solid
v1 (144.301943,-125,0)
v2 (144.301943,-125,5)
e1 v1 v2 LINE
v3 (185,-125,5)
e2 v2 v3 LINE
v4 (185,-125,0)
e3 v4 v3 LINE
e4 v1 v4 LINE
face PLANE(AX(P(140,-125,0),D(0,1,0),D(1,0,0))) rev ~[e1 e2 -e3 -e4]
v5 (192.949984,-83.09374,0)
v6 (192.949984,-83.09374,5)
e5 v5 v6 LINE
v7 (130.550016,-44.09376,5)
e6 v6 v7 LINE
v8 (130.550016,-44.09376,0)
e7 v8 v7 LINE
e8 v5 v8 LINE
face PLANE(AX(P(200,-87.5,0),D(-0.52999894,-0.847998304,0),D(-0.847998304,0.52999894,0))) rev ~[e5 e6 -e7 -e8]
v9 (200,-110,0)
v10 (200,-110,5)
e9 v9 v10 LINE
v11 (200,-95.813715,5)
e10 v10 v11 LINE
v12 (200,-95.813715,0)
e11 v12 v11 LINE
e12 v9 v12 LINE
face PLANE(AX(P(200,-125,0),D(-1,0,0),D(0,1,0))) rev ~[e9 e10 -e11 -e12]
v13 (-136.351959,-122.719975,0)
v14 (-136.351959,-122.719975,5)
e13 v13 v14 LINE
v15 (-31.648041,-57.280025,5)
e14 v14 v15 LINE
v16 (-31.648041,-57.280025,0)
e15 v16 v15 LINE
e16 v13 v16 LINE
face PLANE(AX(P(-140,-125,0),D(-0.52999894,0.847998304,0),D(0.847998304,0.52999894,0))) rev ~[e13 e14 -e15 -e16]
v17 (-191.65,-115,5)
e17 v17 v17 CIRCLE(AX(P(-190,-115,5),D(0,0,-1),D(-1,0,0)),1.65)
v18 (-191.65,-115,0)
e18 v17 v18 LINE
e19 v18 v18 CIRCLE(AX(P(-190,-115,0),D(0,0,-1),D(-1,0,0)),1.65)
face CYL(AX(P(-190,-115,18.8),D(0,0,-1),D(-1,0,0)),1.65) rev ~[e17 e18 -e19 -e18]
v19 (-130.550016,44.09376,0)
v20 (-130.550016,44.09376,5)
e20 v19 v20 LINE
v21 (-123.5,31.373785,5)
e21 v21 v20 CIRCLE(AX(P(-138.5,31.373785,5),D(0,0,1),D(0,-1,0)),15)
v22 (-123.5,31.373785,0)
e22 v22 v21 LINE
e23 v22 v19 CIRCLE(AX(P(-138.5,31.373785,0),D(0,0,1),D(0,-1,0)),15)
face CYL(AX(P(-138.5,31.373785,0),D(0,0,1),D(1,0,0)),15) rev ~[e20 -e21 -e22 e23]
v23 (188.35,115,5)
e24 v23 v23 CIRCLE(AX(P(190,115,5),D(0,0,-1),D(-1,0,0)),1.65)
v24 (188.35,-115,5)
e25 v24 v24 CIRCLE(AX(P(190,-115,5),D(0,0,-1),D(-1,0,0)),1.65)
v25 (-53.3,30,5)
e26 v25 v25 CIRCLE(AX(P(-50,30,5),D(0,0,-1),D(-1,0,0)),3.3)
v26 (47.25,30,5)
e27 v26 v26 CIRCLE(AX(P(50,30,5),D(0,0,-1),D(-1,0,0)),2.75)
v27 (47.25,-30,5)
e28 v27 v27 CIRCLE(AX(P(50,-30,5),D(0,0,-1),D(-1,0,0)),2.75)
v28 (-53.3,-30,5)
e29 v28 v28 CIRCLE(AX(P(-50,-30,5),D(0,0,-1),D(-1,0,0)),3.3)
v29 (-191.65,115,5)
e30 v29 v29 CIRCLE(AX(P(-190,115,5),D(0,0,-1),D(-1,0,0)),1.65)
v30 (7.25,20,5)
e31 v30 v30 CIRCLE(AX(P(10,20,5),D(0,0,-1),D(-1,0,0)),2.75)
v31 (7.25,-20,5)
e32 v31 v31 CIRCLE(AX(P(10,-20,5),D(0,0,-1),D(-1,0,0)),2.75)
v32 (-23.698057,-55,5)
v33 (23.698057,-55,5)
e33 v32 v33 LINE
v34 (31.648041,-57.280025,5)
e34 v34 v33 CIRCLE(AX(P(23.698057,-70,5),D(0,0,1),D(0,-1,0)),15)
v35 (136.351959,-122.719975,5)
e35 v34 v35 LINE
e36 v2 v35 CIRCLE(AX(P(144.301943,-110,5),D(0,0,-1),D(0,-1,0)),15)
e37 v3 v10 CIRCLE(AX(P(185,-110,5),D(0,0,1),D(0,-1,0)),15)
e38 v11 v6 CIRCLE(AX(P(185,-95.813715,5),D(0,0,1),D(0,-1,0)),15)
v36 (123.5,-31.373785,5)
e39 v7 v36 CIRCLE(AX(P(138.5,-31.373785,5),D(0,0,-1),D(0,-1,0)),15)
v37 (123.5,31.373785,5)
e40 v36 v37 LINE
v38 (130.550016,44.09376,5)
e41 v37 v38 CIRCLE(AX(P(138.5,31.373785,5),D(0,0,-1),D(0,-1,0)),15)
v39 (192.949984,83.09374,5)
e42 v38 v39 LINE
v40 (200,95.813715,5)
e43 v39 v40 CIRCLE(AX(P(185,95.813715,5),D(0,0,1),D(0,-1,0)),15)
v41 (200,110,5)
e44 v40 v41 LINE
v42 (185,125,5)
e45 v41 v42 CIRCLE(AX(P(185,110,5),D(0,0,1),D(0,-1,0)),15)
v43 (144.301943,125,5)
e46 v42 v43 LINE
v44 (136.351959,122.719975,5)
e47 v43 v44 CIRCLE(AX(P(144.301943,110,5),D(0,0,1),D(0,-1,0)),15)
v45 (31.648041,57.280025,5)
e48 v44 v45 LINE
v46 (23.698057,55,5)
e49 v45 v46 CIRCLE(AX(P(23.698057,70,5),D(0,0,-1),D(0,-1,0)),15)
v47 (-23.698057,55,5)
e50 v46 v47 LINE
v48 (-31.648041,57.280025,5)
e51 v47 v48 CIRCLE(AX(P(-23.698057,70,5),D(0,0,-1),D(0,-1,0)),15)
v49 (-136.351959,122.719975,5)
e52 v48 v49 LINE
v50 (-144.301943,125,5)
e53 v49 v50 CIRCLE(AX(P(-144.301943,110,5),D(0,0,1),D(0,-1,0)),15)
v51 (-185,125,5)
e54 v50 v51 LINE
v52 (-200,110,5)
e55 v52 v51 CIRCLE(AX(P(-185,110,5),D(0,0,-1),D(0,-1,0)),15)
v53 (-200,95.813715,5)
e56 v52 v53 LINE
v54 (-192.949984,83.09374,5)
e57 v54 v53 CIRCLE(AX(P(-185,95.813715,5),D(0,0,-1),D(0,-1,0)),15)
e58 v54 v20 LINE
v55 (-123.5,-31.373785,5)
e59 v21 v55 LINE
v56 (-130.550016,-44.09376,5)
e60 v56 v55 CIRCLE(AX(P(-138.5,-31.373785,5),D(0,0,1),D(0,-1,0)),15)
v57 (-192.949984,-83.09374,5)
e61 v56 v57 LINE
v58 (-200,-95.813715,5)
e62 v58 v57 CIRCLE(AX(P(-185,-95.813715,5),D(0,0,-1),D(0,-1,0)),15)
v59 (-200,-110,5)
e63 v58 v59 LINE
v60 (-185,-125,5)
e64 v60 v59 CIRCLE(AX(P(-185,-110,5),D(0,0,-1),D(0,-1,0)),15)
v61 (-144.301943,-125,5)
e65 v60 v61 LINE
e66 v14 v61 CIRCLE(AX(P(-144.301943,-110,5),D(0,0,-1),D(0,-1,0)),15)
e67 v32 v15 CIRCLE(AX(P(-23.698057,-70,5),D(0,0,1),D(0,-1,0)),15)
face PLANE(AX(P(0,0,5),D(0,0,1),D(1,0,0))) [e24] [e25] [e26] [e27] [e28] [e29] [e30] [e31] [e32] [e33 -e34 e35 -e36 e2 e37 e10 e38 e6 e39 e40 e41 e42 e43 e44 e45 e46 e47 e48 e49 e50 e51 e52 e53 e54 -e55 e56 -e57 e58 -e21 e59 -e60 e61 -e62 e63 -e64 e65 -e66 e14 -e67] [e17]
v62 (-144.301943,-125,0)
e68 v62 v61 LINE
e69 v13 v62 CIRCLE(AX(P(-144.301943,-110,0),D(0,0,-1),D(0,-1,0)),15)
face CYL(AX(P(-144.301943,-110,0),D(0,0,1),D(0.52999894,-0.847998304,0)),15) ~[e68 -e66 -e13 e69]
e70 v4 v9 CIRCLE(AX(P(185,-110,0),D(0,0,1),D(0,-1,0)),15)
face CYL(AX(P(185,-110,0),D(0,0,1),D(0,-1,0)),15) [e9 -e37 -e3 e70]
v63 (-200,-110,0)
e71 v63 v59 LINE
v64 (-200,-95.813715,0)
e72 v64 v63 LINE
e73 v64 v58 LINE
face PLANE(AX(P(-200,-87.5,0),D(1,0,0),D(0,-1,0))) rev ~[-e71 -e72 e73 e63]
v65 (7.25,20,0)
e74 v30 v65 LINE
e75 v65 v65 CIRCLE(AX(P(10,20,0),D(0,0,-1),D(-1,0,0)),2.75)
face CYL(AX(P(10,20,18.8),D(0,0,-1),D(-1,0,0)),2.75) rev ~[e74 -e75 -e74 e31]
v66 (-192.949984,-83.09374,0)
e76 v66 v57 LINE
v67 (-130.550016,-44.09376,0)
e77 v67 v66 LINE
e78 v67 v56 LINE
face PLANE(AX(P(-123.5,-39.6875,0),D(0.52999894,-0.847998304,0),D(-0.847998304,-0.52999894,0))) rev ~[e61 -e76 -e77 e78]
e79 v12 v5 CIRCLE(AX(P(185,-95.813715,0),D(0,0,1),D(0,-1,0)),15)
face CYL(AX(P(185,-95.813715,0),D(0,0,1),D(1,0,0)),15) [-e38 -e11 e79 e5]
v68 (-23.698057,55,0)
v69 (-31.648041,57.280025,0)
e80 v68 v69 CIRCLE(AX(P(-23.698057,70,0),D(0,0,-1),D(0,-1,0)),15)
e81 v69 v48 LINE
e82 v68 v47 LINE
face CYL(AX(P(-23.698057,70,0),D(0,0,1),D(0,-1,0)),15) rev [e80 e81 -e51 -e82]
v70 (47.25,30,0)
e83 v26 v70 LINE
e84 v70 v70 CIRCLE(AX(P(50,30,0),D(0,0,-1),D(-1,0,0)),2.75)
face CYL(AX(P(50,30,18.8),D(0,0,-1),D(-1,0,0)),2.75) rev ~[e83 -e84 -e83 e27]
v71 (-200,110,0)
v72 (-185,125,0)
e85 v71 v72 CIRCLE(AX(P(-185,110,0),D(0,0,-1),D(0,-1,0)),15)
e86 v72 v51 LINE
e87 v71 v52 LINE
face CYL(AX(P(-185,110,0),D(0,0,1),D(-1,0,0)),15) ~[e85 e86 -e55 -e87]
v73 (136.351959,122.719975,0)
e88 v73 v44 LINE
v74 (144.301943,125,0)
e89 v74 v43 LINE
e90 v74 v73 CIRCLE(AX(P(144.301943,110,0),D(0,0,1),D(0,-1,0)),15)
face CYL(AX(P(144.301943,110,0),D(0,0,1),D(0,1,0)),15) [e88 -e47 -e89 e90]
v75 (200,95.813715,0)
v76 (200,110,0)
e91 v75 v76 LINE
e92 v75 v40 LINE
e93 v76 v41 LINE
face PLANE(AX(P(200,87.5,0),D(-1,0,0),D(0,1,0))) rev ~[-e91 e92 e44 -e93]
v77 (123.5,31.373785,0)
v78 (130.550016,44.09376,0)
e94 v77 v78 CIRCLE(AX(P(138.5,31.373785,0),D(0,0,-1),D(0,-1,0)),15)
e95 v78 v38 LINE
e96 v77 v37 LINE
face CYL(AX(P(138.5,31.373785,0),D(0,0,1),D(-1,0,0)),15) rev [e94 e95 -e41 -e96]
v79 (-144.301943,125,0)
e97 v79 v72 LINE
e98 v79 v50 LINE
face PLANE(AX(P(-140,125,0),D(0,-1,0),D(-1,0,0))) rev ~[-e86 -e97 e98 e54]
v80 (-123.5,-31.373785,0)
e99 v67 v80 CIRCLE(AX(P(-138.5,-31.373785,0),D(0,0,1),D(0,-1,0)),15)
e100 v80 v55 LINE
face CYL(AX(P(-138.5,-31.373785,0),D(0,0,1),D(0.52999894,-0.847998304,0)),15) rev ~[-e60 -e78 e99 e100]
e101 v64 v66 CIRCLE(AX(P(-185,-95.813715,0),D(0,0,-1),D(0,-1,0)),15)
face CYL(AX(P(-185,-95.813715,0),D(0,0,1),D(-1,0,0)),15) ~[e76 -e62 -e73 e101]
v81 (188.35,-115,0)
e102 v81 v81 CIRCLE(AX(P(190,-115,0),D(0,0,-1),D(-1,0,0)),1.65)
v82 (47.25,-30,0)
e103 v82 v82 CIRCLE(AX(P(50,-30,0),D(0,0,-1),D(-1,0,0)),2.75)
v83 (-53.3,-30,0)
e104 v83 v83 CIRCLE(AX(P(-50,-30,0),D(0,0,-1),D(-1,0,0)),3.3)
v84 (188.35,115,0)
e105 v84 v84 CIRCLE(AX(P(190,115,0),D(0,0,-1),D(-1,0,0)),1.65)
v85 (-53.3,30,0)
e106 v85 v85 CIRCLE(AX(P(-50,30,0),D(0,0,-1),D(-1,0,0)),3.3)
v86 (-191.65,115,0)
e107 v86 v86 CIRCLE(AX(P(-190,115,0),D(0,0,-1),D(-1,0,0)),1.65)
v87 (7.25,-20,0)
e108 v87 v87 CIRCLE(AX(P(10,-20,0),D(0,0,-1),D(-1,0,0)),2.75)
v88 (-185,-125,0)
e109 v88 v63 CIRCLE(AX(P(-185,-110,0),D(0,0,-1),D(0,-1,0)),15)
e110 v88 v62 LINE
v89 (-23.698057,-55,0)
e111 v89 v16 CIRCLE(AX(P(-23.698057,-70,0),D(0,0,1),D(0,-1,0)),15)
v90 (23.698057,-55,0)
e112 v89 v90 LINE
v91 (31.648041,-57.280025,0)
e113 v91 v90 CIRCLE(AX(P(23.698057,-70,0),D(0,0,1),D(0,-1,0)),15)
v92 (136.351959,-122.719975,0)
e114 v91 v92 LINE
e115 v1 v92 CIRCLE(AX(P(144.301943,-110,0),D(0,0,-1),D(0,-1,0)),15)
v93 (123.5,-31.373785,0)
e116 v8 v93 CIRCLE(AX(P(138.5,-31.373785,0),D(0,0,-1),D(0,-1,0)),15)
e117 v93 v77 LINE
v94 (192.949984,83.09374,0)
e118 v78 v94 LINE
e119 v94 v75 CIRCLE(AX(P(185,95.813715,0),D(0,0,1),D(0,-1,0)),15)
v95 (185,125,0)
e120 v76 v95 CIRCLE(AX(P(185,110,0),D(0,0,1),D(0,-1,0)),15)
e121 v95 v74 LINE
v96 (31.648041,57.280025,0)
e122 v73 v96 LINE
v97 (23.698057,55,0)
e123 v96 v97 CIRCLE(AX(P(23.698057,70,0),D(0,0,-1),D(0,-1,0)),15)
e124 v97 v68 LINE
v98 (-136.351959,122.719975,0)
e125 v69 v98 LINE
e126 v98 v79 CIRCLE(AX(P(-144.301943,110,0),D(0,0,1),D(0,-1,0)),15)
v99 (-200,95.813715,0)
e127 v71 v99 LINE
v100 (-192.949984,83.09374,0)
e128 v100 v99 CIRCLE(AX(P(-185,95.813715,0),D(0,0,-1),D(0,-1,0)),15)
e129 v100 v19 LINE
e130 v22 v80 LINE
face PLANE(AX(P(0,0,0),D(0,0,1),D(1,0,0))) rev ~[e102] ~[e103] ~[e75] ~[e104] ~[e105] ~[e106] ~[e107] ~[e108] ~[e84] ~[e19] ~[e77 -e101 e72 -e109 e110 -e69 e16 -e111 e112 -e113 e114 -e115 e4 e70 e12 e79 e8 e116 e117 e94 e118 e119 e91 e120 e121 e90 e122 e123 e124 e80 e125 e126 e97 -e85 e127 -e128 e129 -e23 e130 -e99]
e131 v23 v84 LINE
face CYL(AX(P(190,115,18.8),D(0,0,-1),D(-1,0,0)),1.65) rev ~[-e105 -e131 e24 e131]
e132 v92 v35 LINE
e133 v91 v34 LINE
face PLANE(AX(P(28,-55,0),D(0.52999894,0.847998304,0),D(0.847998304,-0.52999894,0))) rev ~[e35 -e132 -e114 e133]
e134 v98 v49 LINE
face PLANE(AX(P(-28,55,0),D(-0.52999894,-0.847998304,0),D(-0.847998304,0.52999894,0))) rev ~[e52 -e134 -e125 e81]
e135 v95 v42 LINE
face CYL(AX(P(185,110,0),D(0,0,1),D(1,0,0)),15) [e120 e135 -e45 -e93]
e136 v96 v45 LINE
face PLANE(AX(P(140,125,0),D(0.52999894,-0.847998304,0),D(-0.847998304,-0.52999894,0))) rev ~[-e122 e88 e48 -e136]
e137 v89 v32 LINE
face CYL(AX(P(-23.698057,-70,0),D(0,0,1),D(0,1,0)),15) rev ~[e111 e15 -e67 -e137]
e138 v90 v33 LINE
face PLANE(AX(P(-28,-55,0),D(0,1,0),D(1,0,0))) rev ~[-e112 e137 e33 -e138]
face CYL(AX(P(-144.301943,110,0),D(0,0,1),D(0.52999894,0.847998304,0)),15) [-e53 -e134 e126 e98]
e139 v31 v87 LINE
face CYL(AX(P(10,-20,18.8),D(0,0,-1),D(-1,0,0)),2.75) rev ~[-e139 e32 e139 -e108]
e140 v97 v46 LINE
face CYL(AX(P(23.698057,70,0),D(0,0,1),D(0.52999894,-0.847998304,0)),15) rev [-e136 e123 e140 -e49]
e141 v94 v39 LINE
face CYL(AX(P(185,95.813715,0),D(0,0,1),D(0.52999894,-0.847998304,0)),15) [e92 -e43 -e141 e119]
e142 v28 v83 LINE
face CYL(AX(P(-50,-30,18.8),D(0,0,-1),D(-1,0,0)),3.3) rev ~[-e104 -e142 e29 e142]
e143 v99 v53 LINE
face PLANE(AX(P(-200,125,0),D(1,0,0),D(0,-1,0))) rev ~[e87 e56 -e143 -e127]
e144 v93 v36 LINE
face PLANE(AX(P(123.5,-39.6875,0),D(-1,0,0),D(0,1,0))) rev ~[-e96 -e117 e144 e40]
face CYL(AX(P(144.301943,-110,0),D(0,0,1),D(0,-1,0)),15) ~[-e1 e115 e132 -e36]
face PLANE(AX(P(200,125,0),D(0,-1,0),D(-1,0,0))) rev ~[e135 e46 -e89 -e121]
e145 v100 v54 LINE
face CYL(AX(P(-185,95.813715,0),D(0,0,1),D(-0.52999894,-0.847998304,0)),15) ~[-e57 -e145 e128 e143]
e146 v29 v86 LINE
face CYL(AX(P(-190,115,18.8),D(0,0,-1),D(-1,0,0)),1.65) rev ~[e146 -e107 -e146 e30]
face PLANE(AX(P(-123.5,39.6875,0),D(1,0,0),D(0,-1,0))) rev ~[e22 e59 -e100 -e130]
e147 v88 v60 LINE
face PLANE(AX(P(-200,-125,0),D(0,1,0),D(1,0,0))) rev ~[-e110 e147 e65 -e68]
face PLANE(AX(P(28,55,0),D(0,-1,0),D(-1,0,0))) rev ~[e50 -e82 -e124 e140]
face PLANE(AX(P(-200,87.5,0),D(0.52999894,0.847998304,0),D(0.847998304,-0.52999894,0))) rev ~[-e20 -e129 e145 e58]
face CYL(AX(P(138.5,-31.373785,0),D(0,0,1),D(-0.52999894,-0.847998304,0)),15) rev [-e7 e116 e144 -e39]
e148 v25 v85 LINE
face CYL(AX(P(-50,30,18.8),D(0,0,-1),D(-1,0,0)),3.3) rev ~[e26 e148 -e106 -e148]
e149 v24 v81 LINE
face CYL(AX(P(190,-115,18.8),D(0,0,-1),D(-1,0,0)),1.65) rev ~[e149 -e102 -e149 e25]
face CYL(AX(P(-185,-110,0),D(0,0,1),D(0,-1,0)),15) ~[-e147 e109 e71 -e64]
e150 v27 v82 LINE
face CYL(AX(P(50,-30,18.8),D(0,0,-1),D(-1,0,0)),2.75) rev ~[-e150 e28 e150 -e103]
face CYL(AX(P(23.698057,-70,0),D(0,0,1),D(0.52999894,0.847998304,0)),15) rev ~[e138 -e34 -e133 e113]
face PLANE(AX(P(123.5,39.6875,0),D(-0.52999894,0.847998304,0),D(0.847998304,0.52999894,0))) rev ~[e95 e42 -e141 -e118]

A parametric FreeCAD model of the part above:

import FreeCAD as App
import Part
import Sketcher
from FreeCAD import Vector
Q = App.Units.Quantity


def edges_at(feature, points):
    """Names of the edges that pass closest to the given points."""
    edges = feature.Shape.Edges
    near = lambda p: min(range(len(edges)), key=lambda i: edges[i].distToShape(Part.Vertex(*p))[0])
    return sorted({f"Edge{near(p) + 1}" for p in points})


def add_polygon(sketch, points):
    """Adds a closed chain of lines whose ends are joined by coincident constraints."""
    first, n = sketch.GeometryCount, len(points)
    for a, b in zip(points, points[1:] + points[:1]):
        sketch.addGeometry(Part.LineSegment(App.Vector(*a, 0), App.Vector(*b, 0)), False)
    for i in range(n):
        sketch.addConstraint(Sketcher.Constraint("Coincident", first + i, 2, first + (i + 1) % n, 1))

doc = App.newDocument("Part")
body = doc.addObject("PartDesign::Body", "Body")

# Sketch on XY plane
sketch1 = doc.addObject("Sketcher::SketchObject", "Sketch")
body.addObject(sketch1)
sketch1.AttachmentSupport = (doc.XY_Plane, [""])
sketch1.MapMode = "FlatFace"
add_polygon(sketch1, [(140, -125), (200, -125), (200, -87.5), (123.5, -39.6875), (123.5, 39.6875), (200, 87.5), (200, 125), (140, 125), (28, 55), (-28, 55), (-140, 125), (-200, 125), (-200, 87.5), (-123.5, 39.6875), (-123.5, -39.6875), (-200, -87.5), (-200, -125), (-140, -125), (-28, -55), (28, -55)])  # lines 0-19
sketch1.addConstraint([
    Sketcher.Constraint("Horizontal", 0),
    Sketcher.Constraint("Vertical", 1),
    Sketcher.Constraint("Vertical", 3),
    Sketcher.Constraint("Vertical", 5),
    Sketcher.Constraint("Horizontal", 6),
    Sketcher.Constraint("Horizontal", 8),
    Sketcher.Constraint("Horizontal", 10),
    Sketcher.Constraint("Vertical", 11),
    Sketcher.Constraint("Vertical", 13),
    Sketcher.Constraint("Vertical", 15),
    Sketcher.Constraint("Horizontal", 16),
    Sketcher.Constraint("Horizontal", 18),
    Sketcher.Constraint("Symmetric", 0, 2, 10, 2, -1, 1),
    Sketcher.Constraint("Symmetric", 2, 2, 12, 2, -1, 1),
    Sketcher.Constraint("Symmetric", 4, 2, 14, 2, -1, 1),
    Sketcher.Constraint("Symmetric", 6, 2, 16, 2, -1, 1),
    Sketcher.Constraint("Symmetric", 7, 2, 17, 2, -1, 1),
    Sketcher.Constraint("Symmetric", 6, 2, 9, 2, -2),
    Sketcher.Constraint("Symmetric", 4, 2, 11, 2, -2),
    Sketcher.Constraint("Parallel", 4, 7),
    Sketcher.Constraint("Parallel", 2, 9),
    Sketcher.Constraint("Parallel", 9, 12),
    Sketcher.Constraint("Parallel", 7, 14),
    Sketcher.Constraint("Parallel", 12, 19),
    Sketcher.Constraint("Horizontal", 3, 2, 12, 2),
    Sketcher.Constraint("Vertical", 7, 2, 18, 2),
    Sketcher.Constraint("DistanceX", 0, 1, 0, 2, Q("60 mm")),
    Sketcher.Constraint("DistanceX", 8, 2, 8, 1, Q("56 mm")),
    Sketcher.Constraint("DistanceY", 1, 1, 1, 2, Q("37.5 mm")),
    Sketcher.Constraint("DistanceX", -1, 1, 0, 2, Q("200 mm")),
    Sketcher.Constraint("DistanceY", 0, 2, -1, 1, Q("125 mm")),
    Sketcher.Constraint("DistanceY", -1, 1, 7, 2, Q("55 mm")),
    Sketcher.Constraint("DistanceX", -1, 1, 2, 2, Q("123.5 mm")),
])
pad1 = doc.addObject("PartDesign::Pad", "Pad")
body.addObject(pad1)
pad1.Profile = sketch1
pad1.Length = 5

# Sketch on XY plane
sketch2 = doc.addObject("Sketcher::SketchObject", "Sketch001")
body.addObject(sketch2)
sketch2.AttachmentSupport = (doc.XY_Plane, [""])
sketch2.MapMode = "FlatFace"
sketch2.AttachmentOffset = App.Placement(Vector(0, 0, 5), App.Rotation())
sketch2.addGeometry([
    Part.Circle(Vector(-190, 115, 0), Vector(0, 0, 1), 1.65),
    Part.Circle(Vector(-190, -115, 0), Vector(0, 0, 1), 1.65),
    Part.Circle(Vector(190, -115, 0), Vector(0, 0, 1), 1.65),
    Part.Circle(Vector(190, 115, 0), Vector(0, 0, 1), 1.65),
], False)
sketch2.addConstraint([
    Sketcher.Constraint("Equal", 0, 1),
    Sketcher.Constraint("Equal", 1, 2),
    Sketcher.Constraint("Equal", 2, 3),
    Sketcher.Constraint("Symmetric", 0, 3, 2, 3, -1, 1),
    Sketcher.Constraint("Symmetric", 1, 3, 3, 3, -1, 1),
    Sketcher.Constraint("Symmetric", 1, 3, 2, 3, -2),
    Sketcher.Constraint("Diameter", 0, Q("3.3 mm")),
    Sketcher.Constraint("DistanceX", 0, 3, -1, 1, Q("190 mm")),
    Sketcher.Constraint("DistanceY", -1, 1, 0, 3, Q("115 mm")),
])
doc.recompute()
hole = doc.addObject("PartDesign::Hole", "Hole")
body.addObject(hole)
hole.Profile = sketch2
hole.ThreadType = "None"
hole.Diameter = 3.3
hole.DepthType = "Dimension"
hole.Depth = 13.8
hole.DrillPoint = "Angled"
hole.DrillPointAngle = 118

# Sketch on XY plane
sketch3 = doc.addObject("Sketcher::SketchObject", "Sketch002")
body.addObject(sketch3)
sketch3.AttachmentSupport = (doc.XY_Plane, [""])
sketch3.MapMode = "FlatFace"
sketch3.AttachmentOffset = App.Placement(Vector(0, 0, 5), App.Rotation())
sketch3.addGeometry([
    Part.Circle(Vector(50, -30, 0), Vector(0, 0, 1), 2.75),
    Part.Circle(Vector(50, 30, 0), Vector(0, 0, 1), 2.75),
    Part.Circle(Vector(10, 20, 0), Vector(0, 0, 1), 2.75),
    Part.Circle(Vector(10, -20, 0), Vector(0, 0, 1), 2.75),
], False)
sketch3.addConstraint([
    Sketcher.Constraint("Equal", 0, 1),
    Sketcher.Constraint("Equal", 1, 2),
    Sketcher.Constraint("Equal", 2, 3),
    Sketcher.Constraint("Symmetric", 0, 3, 1, 3, -1),
    Sketcher.Constraint("Symmetric", 2, 3, 3, 3, -1),
    Sketcher.Constraint("Diameter", 0, Q("5.5 mm")),
    Sketcher.Constraint("DistanceX", -1, 1, 0, 3, Q("50 mm")),
    Sketcher.Constraint("DistanceY", 0, 3, -1, 1, Q("30 mm")),
    Sketcher.Constraint("DistanceX", -1, 1, 2, 3, Q("10 mm")),
    Sketcher.Constraint("DistanceY", -1, 1, 2, 3, Q("20 mm")),
])
doc.recompute()
hole2 = doc.addObject("PartDesign::Hole", "Hole001")
body.addObject(hole2)
hole2.Profile = sketch3
hole2.ThreadType = "None"
hole2.Diameter = 5.5
hole2.DepthType = "Dimension"
hole2.Depth = 13.8
hole2.DrillPoint = "Angled"
hole2.DrillPointAngle = 118

# Sketch on XY plane
sketch4 = doc.addObject("Sketcher::SketchObject", "Sketch003")
body.addObject(sketch4)
sketch4.AttachmentSupport = (doc.XY_Plane, [""])
sketch4.MapMode = "FlatFace"
sketch4.AttachmentOffset = App.Placement(Vector(0, 0, 5), App.Rotation())
sketch4.addGeometry([
    Part.Circle(Vector(-50, 30, 0), Vector(0, 0, 1), 3.3),
    Part.Circle(Vector(-50, -30, 0), Vector(0, 0, 1), 3.3),
], False)
sketch4.addConstraint([
    Sketcher.Constraint("Equal", 0, 1),
    Sketcher.Constraint("Symmetric", 0, 3, 1, 3, -1),
    Sketcher.Constraint("Diameter", 0, Q("6.6 mm")),
    Sketcher.Constraint("DistanceX", 0, 3, -1, 1, Q("50 mm")),
    Sketcher.Constraint("DistanceY", -1, 1, 0, 3, Q("30 mm")),
])
doc.recompute()
hole3 = doc.addObject("PartDesign::Hole", "Hole002")
body.addObject(hole3)
hole3.Profile = sketch4
hole3.ThreadType = "None"
hole3.Diameter = 6.6
hole3.DepthType = "Dimension"
hole3.Depth = 13.8
hole3.DrillPoint = "Angled"
hole3.DrillPointAngle = 118
doc.recompute()

fillet = doc.addObject("PartDesign::Fillet", "Fillet")
body.addObject(fillet)
fillet.Base = (hole3, edges_at(hole3, [
    (-28, -55, 2.5),
    (28, -55, 2.5),
    (140, -125, 2.5),
    (200, -125, 2.5),
    (200, -87.5, 2.5),
    (123.5, -39.688, 2.5),
    (123.5, 39.688, 2.5),
    (200, 87.5, 2.5),
    (200, 125, 2.5),
    (140, 125, 2.5),
    (28, 55, 2.5),
    (-28, 55, 2.5),
    (-140, 125, 2.5),
    (-200, 125, 2.5),
    (-200, 87.5, 2.5),
    (-123.5, 39.688, 2.5),
    (-123.5, -39.688, 2.5),
    (-200, -87.5, 2.5),
    (-200, -125, 2.5),
    (-140, -125, 2.5),
]))
fillet.Radius = 15

doc.recompute()
